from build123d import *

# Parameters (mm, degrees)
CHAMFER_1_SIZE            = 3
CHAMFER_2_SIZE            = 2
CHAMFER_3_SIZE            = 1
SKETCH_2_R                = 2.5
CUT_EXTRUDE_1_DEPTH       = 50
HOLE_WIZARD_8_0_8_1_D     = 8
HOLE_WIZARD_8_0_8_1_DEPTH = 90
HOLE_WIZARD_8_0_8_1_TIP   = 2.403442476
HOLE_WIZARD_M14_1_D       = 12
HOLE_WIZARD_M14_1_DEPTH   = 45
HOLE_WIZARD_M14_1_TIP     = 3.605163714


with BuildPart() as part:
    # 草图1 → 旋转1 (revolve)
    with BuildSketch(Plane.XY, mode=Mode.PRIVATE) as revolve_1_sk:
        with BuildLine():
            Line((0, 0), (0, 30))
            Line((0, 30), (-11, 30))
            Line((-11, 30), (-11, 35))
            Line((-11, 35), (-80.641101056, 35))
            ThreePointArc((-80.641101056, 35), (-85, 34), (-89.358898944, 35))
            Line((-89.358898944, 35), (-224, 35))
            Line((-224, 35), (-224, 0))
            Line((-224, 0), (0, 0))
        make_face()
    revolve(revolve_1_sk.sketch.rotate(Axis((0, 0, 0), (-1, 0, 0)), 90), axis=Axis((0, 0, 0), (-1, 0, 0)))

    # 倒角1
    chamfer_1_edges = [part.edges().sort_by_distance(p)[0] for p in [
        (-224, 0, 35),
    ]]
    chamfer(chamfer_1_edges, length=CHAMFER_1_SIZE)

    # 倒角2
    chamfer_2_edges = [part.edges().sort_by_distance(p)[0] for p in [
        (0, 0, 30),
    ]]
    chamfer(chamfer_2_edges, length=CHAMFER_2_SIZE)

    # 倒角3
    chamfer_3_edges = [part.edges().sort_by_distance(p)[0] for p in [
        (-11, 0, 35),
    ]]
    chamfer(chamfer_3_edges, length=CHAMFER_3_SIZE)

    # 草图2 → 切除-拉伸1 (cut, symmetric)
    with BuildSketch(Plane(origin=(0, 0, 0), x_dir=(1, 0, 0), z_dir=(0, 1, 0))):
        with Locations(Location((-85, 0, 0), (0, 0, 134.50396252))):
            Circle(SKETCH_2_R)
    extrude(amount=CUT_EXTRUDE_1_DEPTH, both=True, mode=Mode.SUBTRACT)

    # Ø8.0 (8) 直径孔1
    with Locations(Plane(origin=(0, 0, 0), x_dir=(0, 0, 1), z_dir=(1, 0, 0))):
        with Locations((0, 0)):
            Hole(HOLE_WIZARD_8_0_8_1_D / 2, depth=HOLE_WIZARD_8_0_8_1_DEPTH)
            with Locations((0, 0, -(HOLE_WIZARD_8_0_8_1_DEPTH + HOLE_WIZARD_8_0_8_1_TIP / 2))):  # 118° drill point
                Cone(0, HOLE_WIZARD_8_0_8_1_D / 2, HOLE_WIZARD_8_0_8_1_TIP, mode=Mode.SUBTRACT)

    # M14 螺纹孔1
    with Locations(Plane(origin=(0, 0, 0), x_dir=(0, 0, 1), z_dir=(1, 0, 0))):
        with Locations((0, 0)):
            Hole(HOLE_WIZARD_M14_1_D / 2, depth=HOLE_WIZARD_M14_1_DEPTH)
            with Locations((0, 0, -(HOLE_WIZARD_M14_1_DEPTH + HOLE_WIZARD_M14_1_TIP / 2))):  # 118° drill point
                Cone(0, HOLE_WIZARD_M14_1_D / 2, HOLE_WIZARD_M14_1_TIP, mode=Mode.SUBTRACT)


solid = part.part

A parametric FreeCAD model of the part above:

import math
import FreeCAD as App
import Part
import Sketcher
Q = App.Units.Quantity


def edges_at(feature, points):
    """Names of the edges that pass closest to the given points."""
    edges = feature.Shape.Edges
    near = lambda p: min(range(len(edges)), key=lambda i: edges[i].distToShape(Part.Vertex(*p))[0])
    return sorted({f"Edge{near(p) + 1}" for p in points})

doc = App.newDocument("Part")
body = doc.addObject("PartDesign::Body", "Body")

# Sketch on XY plane
sketch1 = doc.addObject("Sketcher::SketchObject", "Sketch")
body.addObject(sketch1)
sketch1.AttachmentSupport = (doc.XY_Plane, [""])
sketch1.MapMode = "FlatFace"
sketch1.addGeometry([
    Part.LineSegment(App.Vector(0, 0, 0), App.Vector(0, 30, 0)),  # 0
    Part.LineSegment(App.Vector(0, 30, 0), App.Vector(-11, 30, 0)),  # 1
    Part.LineSegment(App.Vector(-11, 30, 0), App.Vector(-11, 35, 0)),  # 2
    Part.LineSegment(App.Vector(-11, 35, 0), App.Vector(-81, 35, 0)),  # 3
    Part.ArcOfCircle(Part.Circle(App.Vector(-85, 44, 0), App.Vector(0, 0, 1), 10), math.radians(-116), math.radians(-64)),  # 4
    Part.LineSegment(App.Vector(-89, 35, 0), App.Vector(-224, 35, 0)),  # 5
    Part.LineSegment(App.Vector(-224, 35, 0), App.Vector(-224, 0, 0)),  # 6
    Part.LineSegment(App.Vector(-224, 0, 0), App.Vector(0, 0, 0)),  # 7
], False)
sketch1.addConstraint([
    Sketcher.Constraint("Coincident", 0, 2, 1, 1),
    Sketcher.Constraint("Coincident", 1, 2, 2, 1),
    Sketcher.Constraint("Coincident", 2, 2, 3, 1),
    Sketcher.Constraint("Coincident", 3, 2, 4, 2),
    Sketcher.Constraint("Coincident", 4, 1, 5, 1),
    Sketcher.Constraint("Coincident", 5, 2, 6, 1),
    Sketcher.Constraint("Coincident", 6, 2, 7, 1),
    Sketcher.Constraint("Coincident", 7, 2, 0, 1),
    Sketcher.Constraint("Vertical", 0),
    Sketcher.Constraint("Horizontal", 1),
    Sketcher.Constraint("Vertical", 2),
    Sketcher.Constraint("Horizontal", 3),
    Sketcher.Constraint("Horizontal", 5),
    Sketcher.Constraint("Vertical", 6),
    Sketcher.Constraint("Horizontal", 7),
    Sketcher.Constraint("Coincident", 7, 2, -1, 1),
    Sketcher.Constraint("Horizontal", 3, 2, 4, 1),
    Sketcher.Constraint("Radius", 4, Q("10 mm")),
    Sketcher.Constraint("DistanceX", 1, 2, 1, 1, Q("11 mm")),
    Sketcher.Constraint("DistanceX", 7, 1, 7, 2, Q("224 mm")),
    Sketcher.Constraint("DistanceY", 0, 1, 0, 2, Q("30 mm")),
    Sketcher.Constraint("DistanceY", 2, 1, 2, 2, Q("5 mm")),
    Sketcher.Constraint("DistanceX", 4, 3, -1, 1, Q("85 mm")),
    Sketcher.Constraint("DistanceY", -1, 1, 4, 3, Q("44 mm")),
])
revolution = doc.addObject("PartDesign::Revolution", "Revolution")
body.addObject(revolution)
revolution.Profile = sketch1
revolution.ReferenceAxis = (sketch1, ["H_Axis"])
revolution.Angle = 360
doc.recompute()

chamfer = doc.addObject("PartDesign::Chamfer", "Chamfer")
body.addObject(chamfer)
chamfer.Base = (revolution, edges_at(revolution, [(-224, 0, 35)]))
chamfer.Size = 3
doc.recompute()

chamfer2 = doc.addObject("PartDesign::Chamfer", "Chamfer001")
body.addObject(chamfer2)
chamfer2.Base = (chamfer, edges_at(chamfer, [(0, 0, 30)]))
chamfer2.Size = 2
doc.recompute()

chamfer3 = doc.addObject("PartDesign::Chamfer", "Chamfer002")
body.addObject(chamfer3)
chamfer3.Base = (chamfer2, edges_at(chamfer2, [(-11, 0, 35)]))
chamfer3.Size = 1

# Sketch on XZ plane
sketch2 = doc.addObject("Sketcher::SketchObject", "Sketch001")
body.addObject(sketch2)
sketch2.AttachmentSupport = (doc.XZ_Plane, [""])
sketch2.MapMode = "FlatFace"
sketch2.addGeometry(Part.Circle(App.Vector(-85, 0, 0), App.Vector(0, 0, 1), 2.5), False)
sketch2.addConstraint([
    Sketcher.Constraint("PointOnObject", 0, 3, -1),
    Sketcher.Constraint("Diameter", 0, Q("5 mm")),
    Sketcher.Constraint("DistanceX", 0, 3, -1, 1, Q("85 mm")),
])
pocket1 = doc.addObject("PartDesign::Pocket", "Pocket")
body.addObject(pocket1)
pocket1.Profile = sketch2
pocket1.Length = 100
pocket1.Midplane = True

# Sketch on YZ plane
sketch3 = doc.addObject("Sketcher::SketchObject", "Sketch002")
body.addObject(sketch3)
sketch3.AttachmentSupport = (doc.YZ_Plane, [""])
sketch3.MapMode = "FlatFace"
sketch3.addGeometry(Part.Circle(App.Vector(0, 0, 0), App.Vector(0, 0, 1), 4), False)
sketch3.addConstraint([
    Sketcher.Constraint("Coincident", 0, 3, -1, 1),
    Sketcher.Constraint("Diameter", 0, Q("8 mm")),
])
doc.recompute()
hole = doc.addObject("PartDesign::Hole", "Hole")
body.addObject(hole)
hole.Profile = sketch3
hole.ThreadType = "None"
hole.Diameter = 8
hole.DepthType = "Dimension"
hole.Depth = 90
hole.DrillPoint = "Angled"
hole.DrillPointAngle = 118

# Sketch on YZ plane
sketch4 = doc.addObject("Sketcher::SketchObject", "Sketch003")
body.addObject(sketch4)
sketch4.AttachmentSupport = (doc.YZ_Plane, [""])
sketch4.MapMode = "FlatFace"
sketch4.addGeometry(Part.Circle(App.Vector(0, 0, 0), App.Vector(0, 0, 1), 6), False)
sketch4.addConstraint([
    Sketcher.Constraint("Coincident", 0, 3, -1, 1),
    Sketcher.Constraint("Diameter", 0, Q("12 mm")),
])
doc.recompute()
hole2 = doc.addObject("PartDesign::Hole", "Hole001")
body.addObject(hole2)
hole2.Profile = sketch4
hole2.ThreadType = "None"
hole2.Diameter = 12
hole2.DepthType = "Dimension"
hole2.Depth = 45
hole2.DrillPoint = "Angled"
hole2.DrillPointAngle = 118

doc.recompute()
